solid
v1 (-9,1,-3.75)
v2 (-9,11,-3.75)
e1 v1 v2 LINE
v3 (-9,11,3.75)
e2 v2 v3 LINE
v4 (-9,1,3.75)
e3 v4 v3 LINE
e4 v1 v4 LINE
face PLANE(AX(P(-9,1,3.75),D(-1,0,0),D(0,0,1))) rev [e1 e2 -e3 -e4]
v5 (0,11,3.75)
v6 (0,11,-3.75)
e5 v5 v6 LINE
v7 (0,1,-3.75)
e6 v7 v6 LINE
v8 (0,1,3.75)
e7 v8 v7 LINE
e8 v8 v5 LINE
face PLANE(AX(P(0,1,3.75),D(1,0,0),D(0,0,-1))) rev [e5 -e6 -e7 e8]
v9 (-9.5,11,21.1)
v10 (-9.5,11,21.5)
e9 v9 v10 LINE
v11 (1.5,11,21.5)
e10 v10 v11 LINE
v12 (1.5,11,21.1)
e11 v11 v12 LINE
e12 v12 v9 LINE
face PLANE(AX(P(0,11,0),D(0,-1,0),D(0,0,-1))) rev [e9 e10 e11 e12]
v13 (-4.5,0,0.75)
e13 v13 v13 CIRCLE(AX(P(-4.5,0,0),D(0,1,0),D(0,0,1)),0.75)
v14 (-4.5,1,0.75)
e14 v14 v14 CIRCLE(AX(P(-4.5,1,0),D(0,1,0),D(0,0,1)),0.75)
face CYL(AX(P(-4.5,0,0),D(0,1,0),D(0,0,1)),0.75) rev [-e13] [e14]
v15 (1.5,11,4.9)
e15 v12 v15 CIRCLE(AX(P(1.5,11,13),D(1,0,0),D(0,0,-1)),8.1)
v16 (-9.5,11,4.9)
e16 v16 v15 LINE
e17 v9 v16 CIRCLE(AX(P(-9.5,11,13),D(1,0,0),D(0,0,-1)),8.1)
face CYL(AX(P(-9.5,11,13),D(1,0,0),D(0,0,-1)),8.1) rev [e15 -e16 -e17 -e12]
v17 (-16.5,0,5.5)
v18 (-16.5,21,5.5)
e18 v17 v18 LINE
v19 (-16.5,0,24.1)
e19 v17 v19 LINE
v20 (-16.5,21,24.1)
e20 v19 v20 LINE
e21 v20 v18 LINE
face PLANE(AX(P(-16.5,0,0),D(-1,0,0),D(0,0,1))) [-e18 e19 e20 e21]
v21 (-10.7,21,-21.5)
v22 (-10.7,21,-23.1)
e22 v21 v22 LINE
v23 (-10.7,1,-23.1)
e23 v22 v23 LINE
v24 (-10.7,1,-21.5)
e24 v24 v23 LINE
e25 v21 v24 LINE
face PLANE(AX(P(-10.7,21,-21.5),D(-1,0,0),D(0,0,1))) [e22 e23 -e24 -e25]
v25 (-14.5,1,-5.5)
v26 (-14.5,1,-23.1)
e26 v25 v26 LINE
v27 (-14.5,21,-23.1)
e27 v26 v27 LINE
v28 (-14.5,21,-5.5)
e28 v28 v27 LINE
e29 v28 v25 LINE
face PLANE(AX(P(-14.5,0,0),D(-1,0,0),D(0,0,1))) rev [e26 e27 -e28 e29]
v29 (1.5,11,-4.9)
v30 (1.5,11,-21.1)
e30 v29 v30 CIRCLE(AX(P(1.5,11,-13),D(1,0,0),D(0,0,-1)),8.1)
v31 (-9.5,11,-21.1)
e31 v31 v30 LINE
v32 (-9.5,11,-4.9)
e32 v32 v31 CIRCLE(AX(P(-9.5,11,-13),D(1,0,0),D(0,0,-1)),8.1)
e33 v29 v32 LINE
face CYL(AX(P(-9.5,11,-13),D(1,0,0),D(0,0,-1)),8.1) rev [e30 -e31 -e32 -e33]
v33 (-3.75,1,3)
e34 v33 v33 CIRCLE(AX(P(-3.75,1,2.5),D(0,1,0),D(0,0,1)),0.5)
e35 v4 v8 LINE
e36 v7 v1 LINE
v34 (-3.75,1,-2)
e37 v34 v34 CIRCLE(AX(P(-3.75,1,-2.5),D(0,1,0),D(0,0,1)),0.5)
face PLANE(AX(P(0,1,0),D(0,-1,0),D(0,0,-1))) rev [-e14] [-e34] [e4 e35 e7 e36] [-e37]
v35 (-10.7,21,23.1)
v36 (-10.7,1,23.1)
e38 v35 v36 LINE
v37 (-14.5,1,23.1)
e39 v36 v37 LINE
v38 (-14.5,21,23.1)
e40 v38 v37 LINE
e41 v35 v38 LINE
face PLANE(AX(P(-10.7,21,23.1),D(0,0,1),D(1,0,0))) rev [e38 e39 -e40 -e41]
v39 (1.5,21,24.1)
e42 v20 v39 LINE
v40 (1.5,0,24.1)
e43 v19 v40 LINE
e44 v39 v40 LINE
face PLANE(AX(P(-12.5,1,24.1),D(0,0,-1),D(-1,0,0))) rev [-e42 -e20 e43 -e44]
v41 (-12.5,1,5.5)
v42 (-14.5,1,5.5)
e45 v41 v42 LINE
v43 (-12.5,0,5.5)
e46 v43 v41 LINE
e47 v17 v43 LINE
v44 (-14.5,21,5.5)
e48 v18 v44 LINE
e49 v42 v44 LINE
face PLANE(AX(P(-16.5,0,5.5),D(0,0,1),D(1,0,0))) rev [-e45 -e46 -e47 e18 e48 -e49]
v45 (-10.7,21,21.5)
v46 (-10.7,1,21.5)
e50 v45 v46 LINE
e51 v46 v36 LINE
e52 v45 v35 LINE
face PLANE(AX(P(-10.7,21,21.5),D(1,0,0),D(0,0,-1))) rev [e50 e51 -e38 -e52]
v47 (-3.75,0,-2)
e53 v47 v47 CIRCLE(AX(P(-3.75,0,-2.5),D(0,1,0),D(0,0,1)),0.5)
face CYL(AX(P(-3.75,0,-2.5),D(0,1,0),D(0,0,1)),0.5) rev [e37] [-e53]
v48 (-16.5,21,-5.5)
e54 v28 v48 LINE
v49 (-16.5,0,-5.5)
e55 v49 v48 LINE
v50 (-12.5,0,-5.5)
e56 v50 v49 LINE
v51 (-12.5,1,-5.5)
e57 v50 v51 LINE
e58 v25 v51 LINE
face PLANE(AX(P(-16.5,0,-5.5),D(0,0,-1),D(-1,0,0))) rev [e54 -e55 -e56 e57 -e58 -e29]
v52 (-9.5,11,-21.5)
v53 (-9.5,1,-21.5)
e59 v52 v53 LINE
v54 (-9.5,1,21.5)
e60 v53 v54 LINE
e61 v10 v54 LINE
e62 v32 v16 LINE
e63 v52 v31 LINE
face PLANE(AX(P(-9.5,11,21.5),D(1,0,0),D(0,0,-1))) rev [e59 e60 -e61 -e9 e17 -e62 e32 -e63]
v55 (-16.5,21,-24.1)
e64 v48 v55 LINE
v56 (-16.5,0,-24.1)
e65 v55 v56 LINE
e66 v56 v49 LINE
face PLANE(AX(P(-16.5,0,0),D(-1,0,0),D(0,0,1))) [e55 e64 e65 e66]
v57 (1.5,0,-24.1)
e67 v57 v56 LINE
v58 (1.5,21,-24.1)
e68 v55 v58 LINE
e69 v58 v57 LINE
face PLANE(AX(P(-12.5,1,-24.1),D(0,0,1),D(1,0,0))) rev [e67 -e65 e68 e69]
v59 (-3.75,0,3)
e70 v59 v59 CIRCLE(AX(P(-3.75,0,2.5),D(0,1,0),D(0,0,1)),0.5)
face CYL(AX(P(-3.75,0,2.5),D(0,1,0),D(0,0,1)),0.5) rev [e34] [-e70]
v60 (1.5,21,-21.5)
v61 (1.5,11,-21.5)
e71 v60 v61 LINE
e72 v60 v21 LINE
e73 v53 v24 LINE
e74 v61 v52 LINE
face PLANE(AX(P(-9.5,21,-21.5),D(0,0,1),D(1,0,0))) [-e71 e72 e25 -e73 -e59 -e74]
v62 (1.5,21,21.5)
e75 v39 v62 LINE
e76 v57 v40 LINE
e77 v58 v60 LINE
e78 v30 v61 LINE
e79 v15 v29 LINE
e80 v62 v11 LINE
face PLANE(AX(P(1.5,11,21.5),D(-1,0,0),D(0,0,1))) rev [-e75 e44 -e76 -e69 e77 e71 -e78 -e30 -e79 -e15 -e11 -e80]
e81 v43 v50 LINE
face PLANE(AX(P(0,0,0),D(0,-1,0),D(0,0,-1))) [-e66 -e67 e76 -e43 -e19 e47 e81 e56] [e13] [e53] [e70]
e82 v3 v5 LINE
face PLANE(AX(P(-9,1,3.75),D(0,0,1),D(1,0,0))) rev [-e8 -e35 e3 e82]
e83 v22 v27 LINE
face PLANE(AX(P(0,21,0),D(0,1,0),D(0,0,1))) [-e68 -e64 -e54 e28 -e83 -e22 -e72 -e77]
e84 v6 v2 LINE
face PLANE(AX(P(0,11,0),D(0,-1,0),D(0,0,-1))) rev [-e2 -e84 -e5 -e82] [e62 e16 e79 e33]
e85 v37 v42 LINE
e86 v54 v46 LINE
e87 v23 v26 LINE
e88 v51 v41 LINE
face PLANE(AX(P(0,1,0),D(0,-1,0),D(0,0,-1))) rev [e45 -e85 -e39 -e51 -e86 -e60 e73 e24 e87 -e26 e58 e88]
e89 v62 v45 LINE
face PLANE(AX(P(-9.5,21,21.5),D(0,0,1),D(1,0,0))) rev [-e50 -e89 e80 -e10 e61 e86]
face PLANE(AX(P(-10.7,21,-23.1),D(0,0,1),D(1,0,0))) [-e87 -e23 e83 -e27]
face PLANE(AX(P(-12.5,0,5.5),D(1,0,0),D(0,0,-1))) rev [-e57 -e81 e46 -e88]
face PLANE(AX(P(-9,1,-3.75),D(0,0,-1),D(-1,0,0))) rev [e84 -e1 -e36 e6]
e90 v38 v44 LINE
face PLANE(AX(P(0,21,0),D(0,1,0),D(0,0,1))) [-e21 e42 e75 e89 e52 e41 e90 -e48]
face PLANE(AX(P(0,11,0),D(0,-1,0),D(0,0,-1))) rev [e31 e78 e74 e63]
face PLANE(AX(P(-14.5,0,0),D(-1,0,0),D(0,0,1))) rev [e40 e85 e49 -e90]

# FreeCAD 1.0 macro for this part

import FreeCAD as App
import Part
import Sketcher

V = App.Vector


def add_polygon(sketch, points):
    """Adds a closed chain of lines whose ends are joined by coincident constraints."""
    first, n = sketch.GeometryCount, len(points)
    for a, b in zip(points, points[1:] + points[:1]):
        sketch.addGeometry(Part.LineSegment(App.Vector(*a, 0), App.Vector(*b, 0)), False)
    for i in range(n):
        sketch.addConstraint(Sketcher.Constraint("Coincident", first + i, 2, first + (i + 1) % n, 1))

doc = App.newDocument("Part")
body = doc.addObject("PartDesign::Body", "Body")

sketch1 = body.newObject("Sketcher::SketchObject", "Sketch")
sketch1.AttachmentSupport = (doc.getObject("XZ_Plane"), [""])
sketch1.MapMode = "FlatFace"
add_polygon(sketch1, [(-12, -24), (-12, 24), (12, 24), (12, -24)])
sketch1.addConstraint([
    Sketcher.Constraint("Vertical", 0),
    Sketcher.Constraint("Horizontal", 1),
    Sketcher.Constraint("Vertical", 2),
    Sketcher.Constraint("Horizontal", 3),
    Sketcher.Constraint("Symmetric", 0, 2, 2, 2, -1, 1),
    Sketcher.Constraint("DistanceX", 1, 1, 1, 2, 25.0),
    Sketcher.Constraint("DistanceY", 0, 1, 0, 2, 48.2),
])
pad1 = body.newObject("PartDesign::Pad", "Pad")
pad1.Profile = sketch1
pad1.Length = 1
pad1.Reversed = True

sketch2 = body.newObject("Sketcher::SketchObject", "Sketch001")
sketch2.AttachmentSupport = (doc.getObject("XZ_Plane"), [""])
sketch2.MapMode = "FlatFace"
sketch2.AttachmentOffset = App.Placement(V(0, 0, -1), App.Rotation())
add_polygon(sketch2, [(-10, -22), (-10, 22), (2, 22), (2, -22)])
sketch2.addConstraint([
    Sketcher.Constraint("Vertical", 0),
    Sketcher.Constraint("Horizontal", 1),
    Sketcher.Constraint("Vertical", 2),
    Sketcher.Constraint("Horizontal", 3),
    Sketcher.Constraint("DistanceX", 1, 1, 1, 2, 11.0),
    Sketcher.Constraint("DistanceY", 0, 1, 0, 2, 43.0),
    Sketcher.Constraint("DistanceX", 0, 2, -1, 1, 9.5),
    Sketcher.Constraint("DistanceY", -1, 1, 0, 2, 21.5),
])
pad2 = body.newObject("PartDesign::Pad", "Pad001")
pad2.Profile = sketch2
pad2.Length = 10
pad2.Reversed = True

sketch3 = body.newObject("Sketcher::SketchObject", "Sketch002")
sketch3.AttachmentSupport = (doc.getObject("YZ_Plane"), [""])
sketch3.MapMode = "FlatFace"
sketch3.AttachmentOffset = App.Placement(V(0, 0, 1.5), App.Rotation())
sketch3.addGeometry([
    Part.Circle(V(11, 13, 0), V(0, 0, 1), 8),
    Part.Circle(V(11, -13, 0), V(0, 0, 1), 8),
], False)
sketch3.addConstraint([
    Sketcher.Constraint("Equal", 0, 1),
    Sketcher.Constraint("Symmetric", 0, 3, 1, 3, -1),
    Sketcher.Constraint("Diameter", 0, 16.2),
    Sketcher.Constraint("DistanceX", -1, 1, 0, 3, 11.0),
    Sketcher.Constraint("DistanceY", -1, 1, 0, 3, 13.0),
])
pocket1 = body.newObject("PartDesign::Pocket", "Pocket")
pocket1.Profile = sketch3
pocket1.Length = 11

sketch4 = body.newObject("Sketcher::SketchObject", "Sketch003")
sketch4.AttachmentSupport = (doc.getObject("XZ_Plane"), [""])
sketch4.MapMode = "FlatFace"
sketch4.AttachmentOffset = App.Placement(V(0, 0, -1), App.Rotation())
add_polygon(sketch4, [(-10.7, 21.5), (-10.7, 23.1), (-12.5, 23.1), (-12.5, 24.1), (1.5, 24.1), (1.5, 21.5)])
sketch4.addConstraint([
    Sketcher.Constraint("Vertical", 0),
    Sketcher.Constraint("Horizontal", 1),
    Sketcher.Constraint("Vertical", 2),
    Sketcher.Constraint("Horizontal", 3),
    Sketcher.Constraint("Vertical", 4),
    Sketcher.Constraint("Horizontal", 5),
    Sketcher.Constraint("DistanceX", 3, 1, 3, 2, 14.0),
    Sketcher.Constraint("DistanceY", 2, 1, 2, 2, 1.0),
    Sketcher.Constraint("DistanceX", 1, 2, 1, 1, 1.8),
    Sketcher.Constraint("DistanceY", 0, 1, 0, 2, 1.6),
    Sketcher.Constraint("DistanceX", 0, 2, -1, 1, 10.7),
    Sketcher.Constraint("DistanceY", -1, 1, 0, 2, 23.1),
])
pad3 = body.newObject("PartDesign::Pad", "Pad002")
pad3.Profile = sketch4
pad3.Length = 20
pad3.Reversed = True
doc.recompute()

mirrored = body.newObject("PartDesign::Mirrored", "Mirrored")
mirrored.Originals = [pad3]
mirrored.MirrorPlane = (doc.getObject("XY_Plane"), [""])
body.Tip = mirrored

sketch5 = body.newObject("Sketcher::SketchObject", "Sketch004")
sketch5.AttachmentSupport = (doc.getObject("YZ_Plane"), [""])
sketch5.MapMode = "FlatFace"
sketch5.AttachmentOffset = App.Placement(V(0, 0, -12.5), App.Rotation())
add_polygon(sketch5, [(21, -23.1), (21, -24.1), (0, -24.1), (0, 24.1), (21, 24.1), (21, 23.1), (1, 23.1), (1, -23.1)])
sketch5.addConstraint([
    Sketcher.Constraint("Vertical", 0),
    Sketcher.Constraint("Horizontal", 1),
    Sketcher.Constraint("Vertical", 2),
    Sketcher.Constraint("Horizontal", 3),
    Sketcher.Constraint("Vertical", 4),
    Sketcher.Constraint("Horizontal", 5),
    Sketcher.Constraint("Vertical", 6),
    Sketcher.Constraint("Horizontal", 7),
    Sketcher.Constraint("Symmetric", 1, 2, 2, 2, -1, 1),
    Sketcher.Constraint("Symmetric", 4, 2, 7, 2, -1),
    Sketcher.Constraint("DistanceX", 1, 2, 1, 1, 21.0),
    Sketcher.Constraint("DistanceX", 5, 2, 5, 1, 20.0),
    Sketcher.Constraint("DistanceY", 0, 2, 0, 1, 1.0),
    Sketcher.Constraint("DistanceY", 2, 1, 2, 2, 48.2),
])
pad4 = body.newObject("PartDesign::Pad", "Pad003")
pad4.Profile = sketch5
pad4.Length = 2
pad4.Reversed = True

sketch6 = body.newObject("Sketcher::SketchObject", "Sketch005")
sketch6.AttachmentSupport = (doc.getObject("YZ_Plane"), [""])
sketch6.MapMode = "FlatFace"
sketch6.AttachmentOffset = App.Placement(V(0, 0, -14.5), App.Rotation())
add_polygon(sketch6, [(21, -24), (0, -24), (0, 24), (21, 24)])
sketch6.addConstraint([
    Sketcher.Constraint("Horizontal", 0),
    Sketcher.Constraint("Vertical", 1),
    Sketcher.Constraint("Horizontal", 2),
    Sketcher.Constraint("Vertical", 3),
    Sketcher.Constraint("Symmetric", 0, 2, 1, 2, -1, 1),
    Sketcher.Constraint("DistanceX", 0, 2, 0, 1, 21.0),
    Sketcher.Constraint("DistanceY", 1, 1, 1, 2, 48.2),
])
pad5 = body.newObject("PartDesign::Pad", "Pad004")
pad5.Profile = sketch6
pad5.Length = 2
pad5.Reversed = True

sketch7 = body.newObject("Sketcher::SketchObject", "Sketch006")
sketch7.AttachmentSupport = (doc.getObject("XZ_Plane"), [""])
sketch7.MapMode = "FlatFace"
sketch7.AttachmentOffset = App.Placement(V(0, 0, -1), App.Rotation())
add_polygon(sketch7, [(-16.5, -5.5), (-16.5, 5.5), (-12.5, 5.5), (-12.5, -5.5)])
sketch7.addConstraint([
    Sketcher.Constraint("Vertical", 0),
    Sketcher.Constraint("Horizontal", 1),
    Sketcher.Constraint("Vertical", 2),
    Sketcher.Constraint("Horizontal", 3),
    Sketcher.Constraint("DistanceX", 1, 1, 1, 2, 4.0),
    Sketcher.Constraint("DistanceY", 0, 1, 0, 2, 11.0),
    Sketcher.Constraint("DistanceX", 0, 2, -1, 1, 16.5),
    Sketcher.Constraint("DistanceY", -1, 1, 0, 2, 5.5),
])
pocket2 = body.newObject("PartDesign::Pocket", "Pocket001")
pocket2.Profile = sketch7
pocket2.Type = "ThroughAll"
pocket2.Midplane = True

sketch8 = body.newObject("Sketcher::SketchObject", "Sketch007")
sketch8.AttachmentSupport = (doc.getObject("XZ_Plane"), [""])
sketch8.MapMode = "FlatFace"
sketch8.AttachmentOffset = App.Placement(V(0, 0, -11), App.Rotation())
add_polygon(sketch8, [(-9, -4), (-9, 4), (0, 4), (0, -4)])
sketch8.addConstraint([
    Sketcher.Constraint("Vertical", 0),
    Sketcher.Constraint("Horizontal", 1),
    Sketcher.Constraint("Vertical", 2),
    Sketcher.Constraint("Horizontal", 3),
    Sketcher.Constraint("Symmetric", 1, 2, 2, 2, -1, 1),
    Sketcher.Constraint("DistanceX", 1, 1, 1, 2, 9.0),
    Sketcher.Constraint("DistanceY", 0, 1, 0, 2, 7.5),
])
pocket3 = body.newObject("PartDesign::Pocket", "Pocket002")
pocket3.Profile = sketch8
pocket3.Length = 10
pocket3.Reversed = True

sketch9 = body.newObject("Sketcher::SketchObject", "Sketch008")
sketch9.AttachmentSupport = (doc.getObject("XZ_Plane"), [""])
sketch9.MapMode = "FlatFace"
sketch9.AttachmentOffset = App.Placement(V(0, 0, -1), App.Rotation())
sketch9.addGeometry([
    Part.Circle(V(-4.5, 0, 0), V(0, 0, 1), 0.8),
    Part.Circle(V(-3.8, -2.5, 0), V(0, 0, 1), 0.5),
    Part.Circle(V(-3.8, 2.5, 0), V(0, 0, 1), 0.5),
], False)
sketch9.addConstraint([
    Sketcher.Constraint("Equal", 1, 2),
    Sketcher.Constraint("Symmetric", 1, 3, 2, 3, -1),
    Sketcher.Constraint("PointOnObject", 0, 3, -1),
    Sketcher.Constraint("Diameter", 1, 1.0),
    Sketcher.Constraint("Diameter", 0, 1.5),
    Sketcher.Constraint("DistanceY", 1, 3, 2, 3, 5.0),
    Sketcher.Constraint("DistanceX", 0, 3, -1, 1, 4.5),
    Sketcher.Constraint("DistanceX", 1, 3, -1, 1, 3.75),
])
pocket4 = body.newObject("PartDesign::Pocket", "Pocket003")
pocket4.Profile = sketch9
pocket4.Length = 1
pocket4.Reversed = True

sketch10 = body.newObject("Sketcher::SketchObject", "Sketch009")
sketch10.AttachmentSupport = (doc.getObject("XZ_Plane"), [""])
sketch10.MapMode = "FlatFace"
sketch10.AttachmentOffset = App.Placement(V(0, 0, -1), App.Rotation())
add_polygon(sketch10, [(2, -24), (2, 24), (12, 24), (12, -24)])
sketch10.addConstraint([
    Sketcher.Constraint("Vertical", 0),
    Sketcher.Constraint("Horizontal", 1),
    Sketcher.Constraint("Vertical", 2),
    Sketcher.Constraint("Horizontal", 3),
    Sketcher.Constraint("DistanceX", 1, 1, 1, 2, 11.0),
    Sketcher.Constraint("DistanceY", 0, 1, 0, 2, 48.2),
    Sketcher.Constraint("DistanceX", -1, 1, 0, 2, 1.5),
    Sketcher.Constraint("DistanceY", -1, 1, 0, 2, 24.1),
])
pocket5 = body.newObject("PartDesign::Pocket", "Pocket004")
pocket5.Profile = sketch10
pocket5.Length = 1
pocket5.Reversed = True

doc.recompute()
